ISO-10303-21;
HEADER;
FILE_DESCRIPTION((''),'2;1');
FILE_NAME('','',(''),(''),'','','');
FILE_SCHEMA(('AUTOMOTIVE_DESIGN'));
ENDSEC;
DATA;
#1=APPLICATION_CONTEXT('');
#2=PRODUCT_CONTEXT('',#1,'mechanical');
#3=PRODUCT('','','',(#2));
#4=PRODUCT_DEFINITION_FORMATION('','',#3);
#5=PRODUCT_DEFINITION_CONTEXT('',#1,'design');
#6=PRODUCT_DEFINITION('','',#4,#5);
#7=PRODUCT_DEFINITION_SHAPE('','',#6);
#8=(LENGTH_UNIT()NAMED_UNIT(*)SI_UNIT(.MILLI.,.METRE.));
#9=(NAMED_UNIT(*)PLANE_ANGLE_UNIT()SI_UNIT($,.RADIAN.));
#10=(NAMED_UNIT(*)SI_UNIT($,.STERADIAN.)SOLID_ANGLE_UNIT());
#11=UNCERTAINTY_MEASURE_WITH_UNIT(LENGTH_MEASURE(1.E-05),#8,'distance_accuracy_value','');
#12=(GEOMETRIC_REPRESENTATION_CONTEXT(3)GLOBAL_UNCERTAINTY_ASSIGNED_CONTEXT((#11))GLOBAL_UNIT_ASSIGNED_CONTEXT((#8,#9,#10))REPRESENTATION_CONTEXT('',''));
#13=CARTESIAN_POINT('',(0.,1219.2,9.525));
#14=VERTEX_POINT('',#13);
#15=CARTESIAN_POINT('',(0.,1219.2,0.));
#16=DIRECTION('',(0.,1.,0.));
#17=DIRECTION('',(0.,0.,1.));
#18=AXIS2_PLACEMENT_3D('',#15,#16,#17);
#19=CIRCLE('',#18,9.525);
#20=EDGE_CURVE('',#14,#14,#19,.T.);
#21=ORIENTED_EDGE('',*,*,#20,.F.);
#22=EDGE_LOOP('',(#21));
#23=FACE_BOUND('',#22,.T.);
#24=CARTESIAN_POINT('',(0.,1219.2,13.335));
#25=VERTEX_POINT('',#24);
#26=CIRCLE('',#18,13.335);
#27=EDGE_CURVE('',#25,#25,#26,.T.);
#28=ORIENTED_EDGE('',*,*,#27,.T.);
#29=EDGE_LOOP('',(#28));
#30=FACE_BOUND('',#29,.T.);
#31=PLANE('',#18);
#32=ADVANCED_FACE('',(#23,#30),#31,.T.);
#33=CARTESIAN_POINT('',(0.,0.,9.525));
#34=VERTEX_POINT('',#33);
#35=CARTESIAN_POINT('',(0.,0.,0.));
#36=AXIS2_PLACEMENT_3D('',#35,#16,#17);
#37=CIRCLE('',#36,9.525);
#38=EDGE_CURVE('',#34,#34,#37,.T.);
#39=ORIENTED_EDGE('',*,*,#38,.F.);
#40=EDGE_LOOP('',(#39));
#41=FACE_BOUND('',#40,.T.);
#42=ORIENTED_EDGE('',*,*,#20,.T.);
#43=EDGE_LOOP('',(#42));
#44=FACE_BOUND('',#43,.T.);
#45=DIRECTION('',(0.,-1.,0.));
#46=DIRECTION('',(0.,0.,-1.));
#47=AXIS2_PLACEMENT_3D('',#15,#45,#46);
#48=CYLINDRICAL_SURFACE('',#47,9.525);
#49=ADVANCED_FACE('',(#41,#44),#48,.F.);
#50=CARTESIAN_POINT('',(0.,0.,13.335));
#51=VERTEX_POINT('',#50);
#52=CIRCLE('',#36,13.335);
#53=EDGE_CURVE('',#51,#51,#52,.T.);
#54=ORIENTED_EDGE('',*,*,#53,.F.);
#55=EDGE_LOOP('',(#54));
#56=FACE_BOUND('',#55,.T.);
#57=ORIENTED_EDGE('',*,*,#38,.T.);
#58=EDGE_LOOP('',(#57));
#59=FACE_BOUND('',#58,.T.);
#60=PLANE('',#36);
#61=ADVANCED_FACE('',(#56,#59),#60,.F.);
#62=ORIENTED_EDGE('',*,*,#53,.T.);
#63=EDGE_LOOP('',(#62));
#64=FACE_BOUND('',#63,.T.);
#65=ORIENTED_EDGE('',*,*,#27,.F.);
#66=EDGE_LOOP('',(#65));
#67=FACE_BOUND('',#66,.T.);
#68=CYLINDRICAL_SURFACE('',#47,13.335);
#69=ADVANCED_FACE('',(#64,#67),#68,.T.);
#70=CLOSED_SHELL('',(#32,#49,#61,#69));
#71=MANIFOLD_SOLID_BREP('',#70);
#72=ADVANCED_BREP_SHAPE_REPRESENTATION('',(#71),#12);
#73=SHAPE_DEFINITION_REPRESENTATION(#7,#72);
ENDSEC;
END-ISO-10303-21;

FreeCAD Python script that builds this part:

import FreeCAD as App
import Part
import Sketcher

V = App.Vector
Q = App.Units.Quantity

doc = App.newDocument("Part")
params = doc.addObject("Spreadsheet::Sheet", "Params")
for row, (alias, value) in enumerate([
    ("sketch1_diameter", "1.05 in"),
    ("sketch1_diameter2", "0.75 in"),
    ("pad1_length", "48 in"),
], start=1):
    params.set(f"A{row}", alias)
    params.set(f"B{row}", "=" + value)
    params.setAlias(f"B{row}", alias)

body = doc.addObject("PartDesign::Body", "Body")

sketch1 = doc.addObject("Sketcher::SketchObject", "Sketch")
body.addObject(sketch1)
sketch1.AttachmentSupport = (doc.XZ_Plane, [""])
sketch1.MapMode = "FlatFace"
sketch1.addGeometry([
    Part.Circle(V(0, 0, 0), V(0, 0, 1), 13.335),
    Part.Circle(V(0, 0, 0), V(0, 0, 1), 9.525),
], False)
sketch1.addConstraint([
    Sketcher.Constraint("Coincident", 0, 3, -1, 1),
    Sketcher.Constraint("Coincident", 1, 3, -1, 1),
    Sketcher.Constraint("Diameter", 0, Q("1.05 in")),
    Sketcher.Constraint("Diameter", 1, Q("0.75 in")),
])
sketch1.setExpression("Constraints[2]", "Params.sketch1_diameter")
sketch1.setExpression("Constraints[3]", "Params.sketch1_diameter2")
pad1 = doc.addObject("PartDesign::Pad", "Pad")
body.addObject(pad1)
pad1.Profile = sketch1
pad1.setExpression("Length", "Params.pad1_length")
pad1.Reversed = True

doc.recompute()
